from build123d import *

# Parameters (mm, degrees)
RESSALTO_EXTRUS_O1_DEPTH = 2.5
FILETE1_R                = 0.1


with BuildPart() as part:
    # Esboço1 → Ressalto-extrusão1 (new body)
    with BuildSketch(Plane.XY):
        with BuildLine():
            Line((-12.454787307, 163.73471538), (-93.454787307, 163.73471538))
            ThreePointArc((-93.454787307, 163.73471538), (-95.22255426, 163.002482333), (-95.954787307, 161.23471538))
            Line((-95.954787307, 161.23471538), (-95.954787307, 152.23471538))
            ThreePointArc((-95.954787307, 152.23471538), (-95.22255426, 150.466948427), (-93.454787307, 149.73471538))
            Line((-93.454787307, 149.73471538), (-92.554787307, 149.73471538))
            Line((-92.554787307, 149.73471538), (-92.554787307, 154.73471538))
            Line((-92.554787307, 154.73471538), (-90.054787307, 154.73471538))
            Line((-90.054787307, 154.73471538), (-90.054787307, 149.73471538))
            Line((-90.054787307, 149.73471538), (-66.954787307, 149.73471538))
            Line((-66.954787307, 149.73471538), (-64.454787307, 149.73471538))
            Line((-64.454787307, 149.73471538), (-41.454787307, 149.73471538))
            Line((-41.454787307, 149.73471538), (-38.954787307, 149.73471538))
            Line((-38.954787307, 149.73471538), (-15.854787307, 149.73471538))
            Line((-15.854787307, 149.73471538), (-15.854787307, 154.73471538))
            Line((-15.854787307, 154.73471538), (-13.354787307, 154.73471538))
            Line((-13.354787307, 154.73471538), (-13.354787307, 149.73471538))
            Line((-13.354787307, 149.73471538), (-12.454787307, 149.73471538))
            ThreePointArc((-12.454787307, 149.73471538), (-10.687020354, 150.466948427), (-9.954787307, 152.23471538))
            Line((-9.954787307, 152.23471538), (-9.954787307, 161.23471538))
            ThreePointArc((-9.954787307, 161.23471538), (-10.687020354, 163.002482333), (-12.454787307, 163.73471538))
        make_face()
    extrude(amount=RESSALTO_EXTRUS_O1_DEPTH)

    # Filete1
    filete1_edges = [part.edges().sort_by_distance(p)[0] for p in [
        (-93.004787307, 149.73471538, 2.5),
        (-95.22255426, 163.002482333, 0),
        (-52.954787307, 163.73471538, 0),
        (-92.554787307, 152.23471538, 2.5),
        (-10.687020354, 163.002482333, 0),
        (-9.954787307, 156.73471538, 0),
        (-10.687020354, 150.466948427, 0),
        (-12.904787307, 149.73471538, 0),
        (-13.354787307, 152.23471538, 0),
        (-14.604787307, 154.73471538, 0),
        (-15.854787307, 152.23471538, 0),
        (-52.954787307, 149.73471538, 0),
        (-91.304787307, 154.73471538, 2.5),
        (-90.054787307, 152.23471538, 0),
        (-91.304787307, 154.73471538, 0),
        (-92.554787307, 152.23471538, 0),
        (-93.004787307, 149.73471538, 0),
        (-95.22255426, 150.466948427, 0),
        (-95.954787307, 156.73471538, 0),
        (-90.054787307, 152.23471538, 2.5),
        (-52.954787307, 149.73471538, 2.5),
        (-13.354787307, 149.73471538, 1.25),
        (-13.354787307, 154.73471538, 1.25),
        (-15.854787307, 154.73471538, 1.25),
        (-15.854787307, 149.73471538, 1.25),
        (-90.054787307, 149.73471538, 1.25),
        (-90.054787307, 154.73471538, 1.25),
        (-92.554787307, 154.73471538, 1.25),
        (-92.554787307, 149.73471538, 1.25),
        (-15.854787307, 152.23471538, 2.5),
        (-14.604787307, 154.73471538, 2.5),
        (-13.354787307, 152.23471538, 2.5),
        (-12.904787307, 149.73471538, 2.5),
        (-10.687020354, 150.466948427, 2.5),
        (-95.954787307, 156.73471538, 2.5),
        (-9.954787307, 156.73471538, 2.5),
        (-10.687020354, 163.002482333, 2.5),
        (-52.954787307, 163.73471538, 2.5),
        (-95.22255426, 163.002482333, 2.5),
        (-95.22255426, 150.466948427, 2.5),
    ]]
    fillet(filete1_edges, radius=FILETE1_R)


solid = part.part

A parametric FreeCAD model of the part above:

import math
import FreeCAD as App
import Part
import Sketcher

doc = App.newDocument("Part")
body = doc.addObject("PartDesign::Body", "Body")

sketch1 = doc.addObject("Sketcher::SketchObject", "Sketch")
body.addObject(sketch1)
sketch1.AttachmentSupport = (doc.XY_Plane, [""])
sketch1.MapMode = "FlatFace"
sketch1.addGeometry(Part.LineSegment(App.Vector(-12.454787, 163.734715, 0), App.Vector(-93.454787, 163.734715, 0)), False)
sketch1.addGeometry(Part.ArcOfCircle(Part.Circle(App.Vector(-93.454787, 161.234715, 0), App.Vector(0, 0, 1), 2.5), math.radians(90), math.radians(180)), False)
sketch1.addGeometry(Part.LineSegment(App.Vector(-95.954787, 161.234715, 0), App.Vector(-95.954787, 152.234715, 0)), False)
sketch1.addGeometry(Part.ArcOfCircle(Part.Circle(App.Vector(-93.454787, 152.234715, 0), App.Vector(0, 0, 1), 2.5), math.radians(180), math.radians(270)), False)
sketch1.addGeometry(Part.LineSegment(App.Vector(-93.454787, 149.734715, 0), App.Vector(-92.554787, 149.734715, 0)), False)
sketch1.addGeometry(Part.LineSegment(App.Vector(-92.554787, 149.734715, 0), App.Vector(-92.554787, 154.734715, 0)), False)
sketch1.addGeometry(Part.LineSegment(App.Vector(-92.554787, 154.734715, 0), App.Vector(-90.054787, 154.734715, 0)), False)
sketch1.addGeometry(Part.LineSegment(App.Vector(-90.054787, 154.734715, 0), App.Vector(-90.054787, 149.734715, 0)), False)
sketch1.addGeometry(Part.LineSegment(App.Vector(-90.054787, 149.734715, 0), App.Vector(-15.854787, 149.734715, 0)), False)
sketch1.addGeometry(Part.LineSegment(App.Vector(-15.854787, 149.734715, 0), App.Vector(-15.854787, 154.734715, 0)), False)
sketch1.addGeometry(Part.LineSegment(App.Vector(-15.854787, 154.734715, 0), App.Vector(-13.354787, 154.734715, 0)), False)
sketch1.addGeometry(Part.LineSegment(App.Vector(-13.354787, 154.734715, 0), App.Vector(-13.354787, 149.734715, 0)), False)
sketch1.addGeometry(Part.LineSegment(App.Vector(-13.354787, 149.734715, 0), App.Vector(-12.454787, 149.734715, 0)), False)
sketch1.addGeometry(Part.ArcOfCircle(Part.Circle(App.Vector(-12.454787, 152.234715, 0), App.Vector(0, 0, 1), 2.5), math.radians(-90), math.radians(0)), False)
sketch1.addGeometry(Part.LineSegment(App.Vector(-9.954787, 152.234715, 0), App.Vector(-9.954787, 161.234715, 0)), False)
sketch1.addGeometry(Part.ArcOfCircle(Part.Circle(App.Vector(-12.454787, 161.234715, 0), App.Vector(0, 0, 1), 2.5), math.radians(0), math.radians(90)), False)
sketch1.addConstraint(Sketcher.Constraint("Tangent", 0, 2, 1, 1))
sketch1.addConstraint(Sketcher.Constraint("Tangent", 1, 2, 2, 1))
sketch1.addConstraint(Sketcher.Constraint("Tangent", 2, 2, 3, 1))
sketch1.addConstraint(Sketcher.Constraint("Tangent", 3, 2, 4, 1))
sketch1.addConstraint(Sketcher.Constraint("Coincident", 4, 2, 5, 1))
sketch1.addConstraint(Sketcher.Constraint("Coincident", 5, 2, 6, 1))
sketch1.addConstraint(Sketcher.Constraint("Coincident", 6, 2, 7, 1))
sketch1.addConstraint(Sketcher.Constraint("Coincident", 7, 2, 8, 1))
sketch1.addConstraint(Sketcher.Constraint("Coincident", 8, 2, 9, 1))
sketch1.addConstraint(Sketcher.Constraint("Coincident", 9, 2, 10, 1))
sketch1.addConstraint(Sketcher.Constraint("Coincident", 10, 2, 11, 1))
sketch1.addConstraint(Sketcher.Constraint("Coincident", 11, 2, 12, 1))
sketch1.addConstraint(Sketcher.Constraint("Tangent", 12, 2, 13, 1))
sketch1.addConstraint(Sketcher.Constraint("Tangent", 13, 2, 14, 1))
sketch1.addConstraint(Sketcher.Constraint("Tangent", 14, 2, 15, 1))
sketch1.addConstraint(Sketcher.Constraint("Tangent", 15, 2, 0, 1))
sketch1.addConstraint(Sketcher.Constraint("Horizontal", 0))
sketch1.addConstraint(Sketcher.Constraint("Vertical", 2))
sketch1.addConstraint(Sketcher.Constraint("Horizontal", 4))
sketch1.addConstraint(Sketcher.Constraint("Vertical", 5))
sketch1.addConstraint(Sketcher.Constraint("Horizontal", 6))
sketch1.addConstraint(Sketcher.Constraint("Vertical", 7))
sketch1.addConstraint(Sketcher.Constraint("Horizontal", 8))
sketch1.addConstraint(Sketcher.Constraint("Vertical", 9))
sketch1.addConstraint(Sketcher.Constraint("Horizontal", 10))
sketch1.addConstraint(Sketcher.Constraint("Vertical", 11))
sketch1.addConstraint(Sketcher.Constraint("Horizontal", 12))
sketch1.addConstraint(Sketcher.Constraint("Vertical", 14))
sketch1.addConstraint(Sketcher.Constraint("Equal", 1, 3))
sketch1.addConstraint(Sketcher.Constraint("Equal", 3, 13))
sketch1.addConstraint(Sketcher.Constraint("Equal", 13, 15))
sketch1.addConstraint(Sketcher.Constraint("Horizontal", 3, 3, 13, 3))
sketch1.addConstraint(Sketcher.Constraint("Horizontal", 4, 2, 7, 2))
sketch1.addConstraint(Sketcher.Constraint("Horizontal", 6, 2, 9, 2))
sketch1.addConstraint(Sketcher.Constraint("Equal", 6, 10))
sketch1.addConstraint(Sketcher.Constraint("Equal", 4, 12))
sketch1.addConstraint(Sketcher.Constraint("Radius", 1, 2.5))
sketch1.addConstraint(Sketcher.Constraint("DistanceX", 0, 2, 0, 1, 81.0))
sketch1.addConstraint(Sketcher.Constraint("DistanceY", 2, 2, 2, 1, 9.0))
sketch1.addConstraint(Sketcher.Constraint("DistanceY", 5, 1, 5, 2, 5.0))
sketch1.addConstraint(Sketcher.Constraint("DistanceX", 4, 1, 4, 2, 0.9))
sketch1.addConstraint(Sketcher.Constraint("DistanceX", 6, 1, 6, 2, 2.5))
sketch1.addConstraint(Sketcher.Constraint("DistanceX", 1, 3, -1, 1, 93.454787))
sketch1.addConstraint(Sketcher.Constraint("DistanceY", -1, 1, 1, 3, 161.234715))
pad1 = doc.addObject("PartDesign::Pad", "Pad")
body.addObject(pad1)
pad1.Profile = sketch1
pad1.Length = 2.5
doc.recompute()

fillet = doc.addObject("PartDesign::Fillet", "Fillet")
body.addObject(fillet)
fillet.Base = (pad1, ["Edge1"])
fillet.UseAllEdges = True
fillet.Radius = 0.1

doc.recompute()
